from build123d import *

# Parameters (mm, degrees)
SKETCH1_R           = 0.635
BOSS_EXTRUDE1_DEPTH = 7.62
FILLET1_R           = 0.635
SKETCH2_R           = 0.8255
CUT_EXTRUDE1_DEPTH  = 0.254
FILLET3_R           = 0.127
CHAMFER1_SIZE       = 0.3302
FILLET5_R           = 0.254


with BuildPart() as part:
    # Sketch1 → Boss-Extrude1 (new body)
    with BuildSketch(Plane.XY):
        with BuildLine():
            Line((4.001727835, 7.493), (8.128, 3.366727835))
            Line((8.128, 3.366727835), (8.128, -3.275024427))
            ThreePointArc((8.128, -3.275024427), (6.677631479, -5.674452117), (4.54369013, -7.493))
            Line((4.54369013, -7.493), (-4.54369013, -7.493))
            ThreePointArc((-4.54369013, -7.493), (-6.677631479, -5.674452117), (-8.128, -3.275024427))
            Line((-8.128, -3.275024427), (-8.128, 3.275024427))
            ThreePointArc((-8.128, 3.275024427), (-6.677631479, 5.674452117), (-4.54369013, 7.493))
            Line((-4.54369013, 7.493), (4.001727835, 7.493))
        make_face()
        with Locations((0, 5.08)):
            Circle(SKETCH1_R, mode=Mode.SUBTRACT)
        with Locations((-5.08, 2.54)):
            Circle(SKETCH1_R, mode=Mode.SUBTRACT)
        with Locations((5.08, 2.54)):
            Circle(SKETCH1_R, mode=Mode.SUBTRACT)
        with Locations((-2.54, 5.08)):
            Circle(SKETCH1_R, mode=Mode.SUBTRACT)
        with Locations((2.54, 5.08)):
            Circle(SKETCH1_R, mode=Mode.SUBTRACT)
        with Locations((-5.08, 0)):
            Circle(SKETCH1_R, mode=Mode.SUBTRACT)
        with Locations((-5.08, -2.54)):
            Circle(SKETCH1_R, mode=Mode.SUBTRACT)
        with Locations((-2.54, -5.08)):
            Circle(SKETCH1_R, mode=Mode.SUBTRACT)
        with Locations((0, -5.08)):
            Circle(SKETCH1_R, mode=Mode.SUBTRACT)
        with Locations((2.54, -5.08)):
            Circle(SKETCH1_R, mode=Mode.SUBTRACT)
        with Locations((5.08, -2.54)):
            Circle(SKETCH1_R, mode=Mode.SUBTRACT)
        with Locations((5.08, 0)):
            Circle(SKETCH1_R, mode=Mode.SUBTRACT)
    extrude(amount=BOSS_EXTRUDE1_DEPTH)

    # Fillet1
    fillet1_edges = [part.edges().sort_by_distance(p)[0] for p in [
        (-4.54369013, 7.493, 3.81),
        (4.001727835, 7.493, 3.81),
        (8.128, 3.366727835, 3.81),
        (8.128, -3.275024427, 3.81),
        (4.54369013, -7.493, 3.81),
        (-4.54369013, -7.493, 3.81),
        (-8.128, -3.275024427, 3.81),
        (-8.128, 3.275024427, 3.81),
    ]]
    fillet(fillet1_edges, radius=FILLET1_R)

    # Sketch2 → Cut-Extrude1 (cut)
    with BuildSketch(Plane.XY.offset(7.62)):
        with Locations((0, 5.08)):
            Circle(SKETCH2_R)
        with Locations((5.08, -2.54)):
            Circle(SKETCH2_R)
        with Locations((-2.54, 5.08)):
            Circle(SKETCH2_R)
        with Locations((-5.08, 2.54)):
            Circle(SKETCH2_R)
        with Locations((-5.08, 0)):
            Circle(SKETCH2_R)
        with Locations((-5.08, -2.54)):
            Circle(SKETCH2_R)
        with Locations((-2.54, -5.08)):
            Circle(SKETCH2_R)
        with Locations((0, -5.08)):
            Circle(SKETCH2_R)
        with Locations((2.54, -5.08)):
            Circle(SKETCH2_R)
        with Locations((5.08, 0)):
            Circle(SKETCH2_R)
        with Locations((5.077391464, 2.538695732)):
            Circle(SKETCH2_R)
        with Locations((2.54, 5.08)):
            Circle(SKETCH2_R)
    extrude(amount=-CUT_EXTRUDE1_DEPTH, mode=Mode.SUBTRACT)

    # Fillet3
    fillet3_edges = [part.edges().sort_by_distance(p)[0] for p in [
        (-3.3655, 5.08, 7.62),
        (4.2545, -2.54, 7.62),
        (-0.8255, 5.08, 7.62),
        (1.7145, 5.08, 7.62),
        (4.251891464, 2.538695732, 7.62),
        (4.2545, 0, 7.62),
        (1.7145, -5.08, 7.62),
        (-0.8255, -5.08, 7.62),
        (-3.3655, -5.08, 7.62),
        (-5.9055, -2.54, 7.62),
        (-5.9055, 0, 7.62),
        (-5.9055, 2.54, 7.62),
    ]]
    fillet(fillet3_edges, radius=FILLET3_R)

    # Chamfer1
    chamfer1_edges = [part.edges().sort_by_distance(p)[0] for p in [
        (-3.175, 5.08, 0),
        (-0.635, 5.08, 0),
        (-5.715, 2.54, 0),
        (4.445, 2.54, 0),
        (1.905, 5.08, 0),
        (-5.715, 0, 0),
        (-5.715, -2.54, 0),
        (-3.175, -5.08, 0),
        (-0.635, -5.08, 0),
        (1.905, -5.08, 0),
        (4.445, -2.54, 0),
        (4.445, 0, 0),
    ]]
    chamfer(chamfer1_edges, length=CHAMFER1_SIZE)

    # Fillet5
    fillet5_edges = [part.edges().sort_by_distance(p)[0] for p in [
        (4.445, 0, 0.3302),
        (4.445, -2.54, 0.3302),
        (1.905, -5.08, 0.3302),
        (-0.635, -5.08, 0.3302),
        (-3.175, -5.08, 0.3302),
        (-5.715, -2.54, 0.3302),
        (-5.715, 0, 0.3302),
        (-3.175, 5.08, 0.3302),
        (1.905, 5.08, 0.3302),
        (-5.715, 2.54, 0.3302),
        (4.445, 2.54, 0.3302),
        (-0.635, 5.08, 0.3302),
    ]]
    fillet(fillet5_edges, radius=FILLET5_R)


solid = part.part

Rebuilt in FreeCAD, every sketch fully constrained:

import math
import FreeCAD as App
import Part
import Sketcher

V = App.Vector
Q = App.Units.Quantity


def edges_at(feature, points):
    """Names of the edges that pass closest to the given points."""
    edges = feature.Shape.Edges
    near = lambda p: min(range(len(edges)), key=lambda i: edges[i].distToShape(Part.Vertex(*p))[0])
    return sorted({f"Edge{near(p) + 1}" for p in points})

doc = App.newDocument("Part")
body = doc.addObject("PartDesign::Body", "Body")

# Sketch on XY plane
sketch1 = body.newObject("Sketcher::SketchObject", "Sketch")
sketch1.AttachmentSupport = (doc.getObject("XY_Plane"), [""])
sketch1.MapMode = "FlatFace"
sketch1.addGeometry([
    Part.LineSegment(V(8.128, 3.366728, 0), V(4.001728, 7.493, 0)),  # 0
    Part.LineSegment(V(4.001728, 7.493, 0), V(-4.54369, 7.493, 0)),  # 1
    Part.ArcOfCircle(Part.Circle(V(0, 0, 0), V(0, 0, 1), 8.763), math.radians(121.232259), math.radians(158.053959)),  # 2
    Part.LineSegment(V(-8.128, 3.275024, 0), V(-8.128, -3.275024, 0)),  # 3
    Part.ArcOfCircle(Part.Circle(V(0, 0, 0), V(0, 0, 1), 8.763), math.radians(-158.053959), math.radians(-121.232259)),  # 4
    Part.LineSegment(V(-4.54369, -7.493, 0), V(4.54369, -7.493, 0)),  # 5
    Part.ArcOfCircle(Part.Circle(V(0, 0, 0), V(0, 0, 1), 8.763), math.radians(-58.767741), math.radians(-21.946041)),  # 6
    Part.LineSegment(V(8.128, -3.275024, 0), V(8.128, 3.366728, 0)),  # 7
    Part.Circle(V(2.54, -5.08, 0), V(0, 0, 1), 0.635),  # 8
    Part.Circle(V(5.08, -2.54, 0), V(0, 0, 1), 0.635),  # 9
    Part.Circle(V(0, -5.08, 0), V(0, 0, 1), 0.635),  # 10
    Part.Circle(V(-2.54, -5.08, 0), V(0, 0, 1), 0.635),  # 11
    Part.Circle(V(-5.08, -2.54, 0), V(0, 0, 1), 0.635),  # 12
    Part.Circle(V(5.08, 0, 0), V(0, 0, 1), 0.635),  # 13
    Part.Circle(V(5.08, 2.54, 0), V(0, 0, 1), 0.635),  # 14
    Part.Circle(V(2.54, 5.08, 0), V(0, 0, 1), 0.635),  # 15
    Part.Circle(V(-5.08, 0, 0), V(0, 0, 1), 0.635),  # 16
    Part.Circle(V(-5.08, 2.54, 0), V(0, 0, 1), 0.635),  # 17
    Part.Circle(V(0, 5.08, 0), V(0, 0, 1), 0.635),  # 18
    Part.Circle(V(-2.54, 5.08, 0), V(0, 0, 1), 0.635),  # 19
], False)
sketch1.addConstraint([
    Sketcher.Constraint("Coincident", 0, 2, 1, 1),
    Sketcher.Constraint("Coincident", 1, 2, 2, 1),
    Sketcher.Constraint("Coincident", 2, 2, 3, 1),
    Sketcher.Constraint("Coincident", 3, 2, 4, 1),
    Sketcher.Constraint("Coincident", 4, 2, 5, 1),
    Sketcher.Constraint("Coincident", 5, 2, 6, 1),
    Sketcher.Constraint("Coincident", 6, 2, 7, 1),
    Sketcher.Constraint("Coincident", 7, 2, 0, 1),
    Sketcher.Constraint("Horizontal", 1),
    Sketcher.Constraint("Vertical", 3),
    Sketcher.Constraint("Horizontal", 5),
    Sketcher.Constraint("Vertical", 7),
    Sketcher.Constraint("Coincident", 2, 3, -1, 1),
    Sketcher.Constraint("Coincident", 4, 3, -1, 1),
    Sketcher.Constraint("Coincident", 6, 3, -1, 1),
    Sketcher.Constraint("Equal", 2, 4),
    Sketcher.Constraint("Equal", 4, 6),
    Sketcher.Constraint("Equal", 8, 9),
    Sketcher.Constraint("Equal", 9, 10),
    Sketcher.Constraint("Equal", 10, 11),
    Sketcher.Constraint("Equal", 11, 12),
    Sketcher.Constraint("Equal", 12, 13),
    Sketcher.Constraint("Equal", 13, 14),
    Sketcher.Constraint("Equal", 14, 15),
    Sketcher.Constraint("Equal", 15, 16),
    Sketcher.Constraint("Equal", 16, 17),
    Sketcher.Constraint("Equal", 17, 18),
    Sketcher.Constraint("Equal", 18, 19),
    Sketcher.Constraint("Symmetric", 12, 3, 14, 3, -1, 1),
    Sketcher.Constraint("Symmetric", 11, 3, 15, 3, -1, 1),
    Sketcher.Constraint("Symmetric", 13, 3, 16, 3, -1, 1),
    Sketcher.Constraint("Symmetric", 9, 3, 17, 3, -1, 1),
    Sketcher.Constraint("Symmetric", 10, 3, 18, 3, -1, 1),
    Sketcher.Constraint("Symmetric", 8, 3, 19, 3, -1, 1),
    Sketcher.Constraint("Symmetric", 8, 3, 11, 3, -2),
    Sketcher.Constraint("Symmetric", 9, 3, 12, 3, -2),
    Sketcher.Constraint("PointOnObject", 10, 3, -2),
    Sketcher.Constraint("PointOnObject", 13, 3, -1),
    Sketcher.Constraint("Horizontal", 8, 3, 10, 3),
    Sketcher.Constraint("Horizontal", 3, 2, 6, 2),
    Sketcher.Constraint("Vertical", 9, 3, 13, 3),
    Sketcher.Constraint("Vertical", 1, 2, 4, 2),
    Sketcher.Constraint("Diameter", 8, Q("0.05 in")),
    Sketcher.Constraint("Angle", 0, Q("135 deg")),
    Sketcher.Constraint("Radius", 2, Q("0.345 in")),
    Sketcher.Constraint("DistanceX", -1, 1, 8, 3, Q("0.1 in")),
    Sketcher.Constraint("DistanceY", 8, 3, -1, 1, Q("0.2 in")),
    Sketcher.Constraint("DistanceX", -1, 1, 9, 3, Q("0.2 in")),
    Sketcher.Constraint("DistanceY", 9, 3, -1, 1, Q("0.1 in")),
    Sketcher.Constraint("DistanceX", 2, 2, -1, 1, Q("0.32 in")),
    Sketcher.Constraint("DistanceY", -1, 1, 0, 2, Q("0.295 in")),
    Sketcher.Constraint("Distance", 0, Q("5.83543 mm")),
])
pad1 = body.newObject("PartDesign::Pad", "Pad")
pad1.Profile = sketch1
pad1.Length = Q("0.3 in")
doc.recompute()

fillet = body.newObject("PartDesign::Fillet", "Fillet")
fillet.Base = (pad1, edges_at(pad1, [
    (-4.544, 7.493, 3.81),
    (4.002, 7.493, 3.81),
    (8.128, 3.367, 3.81),
    (8.128, -3.275, 3.81),
    (4.544, -7.493, 3.81),
    (-4.544, -7.493, 3.81),
    (-8.128, -3.275, 3.81),
    (-8.128, 3.275, 3.81),
]))
fillet.Radius = Q("0.025 in")

# Sketch on XY plane
sketch2 = body.newObject("Sketcher::SketchObject", "Sketch001")
sketch2.AttachmentSupport = (doc.getObject("XY_Plane"), [""])
sketch2.MapMode = "FlatFace"
sketch2.AttachmentOffset = App.Placement(V(0, 0, 0.3 * 25.4), App.Rotation())
sketch2.addGeometry([
    Part.Circle(V(0, 5.08, 0), V(0, 0, 1), 0.8255),  # 0
    Part.Circle(V(5.08, -2.54, 0), V(0, 0, 1), 0.8255),  # 1
    Part.Circle(V(-2.54, 5.08, 0), V(0, 0, 1), 0.8255),  # 2
    Part.Circle(V(-5.08, 2.54, 0), V(0, 0, 1), 0.8255),  # 3
    Part.Circle(V(-5.08, 0, 0), V(0, 0, 1), 0.8255),  # 4
    Part.Circle(V(-5.08, -2.54, 0), V(0, 0, 1), 0.8255),  # 5
    Part.Circle(V(-2.54, -5.08, 0), V(0, 0, 1), 0.8255),  # 6
    Part.Circle(V(0, -5.08, 0), V(0, 0, 1), 0.8255),  # 7
    Part.Circle(V(2.54, -5.08, 0), V(0, 0, 1), 0.8255),  # 8
    Part.Circle(V(5.08, 0, 0), V(0, 0, 1), 0.8255),  # 9
    Part.Circle(V(5.077391, 2.538696, 0), V(0, 0, 1), 0.8255),  # 10
    Part.Circle(V(2.54, 5.08, 0), V(0, 0, 1), 0.8255),  # 11
], False)
sketch2.addConstraint([
    Sketcher.Constraint("Equal", 0, 1),
    Sketcher.Constraint("Equal", 1, 2),
    Sketcher.Constraint("Equal", 2, 3),
    Sketcher.Constraint("Equal", 3, 4),
    Sketcher.Constraint("Equal", 4, 5),
    Sketcher.Constraint("Equal", 5, 6),
    Sketcher.Constraint("Equal", 6, 7),
    Sketcher.Constraint("Equal", 7, 8),
    Sketcher.Constraint("Equal", 8, 9),
    Sketcher.Constraint("Equal", 9, 10),
    Sketcher.Constraint("Equal", 10, 11),
    Sketcher.Constraint("Symmetric", 1, 3, 3, 3, -1, 1),
    Sketcher.Constraint("Symmetric", 0, 3, 7, 3, -1, 1),
    Sketcher.Constraint("Symmetric", 2, 3, 8, 3, -1, 1),
    Sketcher.Constraint("Symmetric", 4, 3, 9, 3, -1, 1),
    Sketcher.Constraint("Symmetric", 6, 3, 11, 3, -1, 1),
    Sketcher.Constraint("Symmetric", 1, 3, 5, 3, -2),
    Sketcher.Constraint("Symmetric", 6, 3, 8, 3, -2),
    Sketcher.Constraint("PointOnObject", 0, 3, -2),
    Sketcher.Constraint("PointOnObject", 4, 3, -1),
    Sketcher.Constraint("Horizontal", 0, 3, 2, 3),
    Sketcher.Constraint("Vertical", 3, 3, 4, 3),
    Sketcher.Constraint("Diameter", 0, Q("0.065 in")),
    Sketcher.Constraint("DistanceY", -1, 1, 0, 3, Q("0.2 in")),
    Sketcher.Constraint("DistanceX", -1, 1, 1, 3, Q("0.2 in")),
    Sketcher.Constraint("DistanceY", 1, 3, -1, 1, Q("0.1 in")),
    Sketcher.Constraint("DistanceX", 2, 3, -1, 1, Q("0.1 in")),
    Sketcher.Constraint("DistanceX", -1, 1, 10, 3, Q("5.077391 mm")),
    Sketcher.Constraint("DistanceY", -1, 1, 10, 3, Q("2.538696 mm")),
])
pocket1 = body.newObject("PartDesign::Pocket", "Pocket")
pocket1.Profile = sketch2
pocket1.Length = Q("0.01 in")
doc.recompute()

fillet2 = body.newObject("PartDesign::Fillet", "Fillet001")
fillet2.Base = (pocket1, edges_at(pocket1, [
    (-3.365, 5.08, 7.62),
    (4.255, -2.54, 7.62),
    (-0.826, 5.08, 7.62),
    (1.714, 5.08, 7.62),
    (4.252, 2.539, 7.62),
    (4.255, 0, 7.62),
    (1.714, -5.08, 7.62),
    (-0.826, -5.08, 7.62),
    (-3.365, -5.08, 7.62),
    (-5.905, -2.54, 7.62),
    (-5.905, 0, 7.62),
    (-5.905, 2.54, 7.62),
]))
fillet2.Radius = Q("0.005 in")
doc.recompute()

chamfer = body.newObject("PartDesign::Chamfer", "Chamfer")
chamfer.Base = (fillet2, edges_at(fillet2, [
    (-3.175, 5.08, 0),
    (-0.635, 5.08, 0),
    (-5.715, 2.54, 0),
    (4.445, 2.54, 0),
    (1.905, 5.08, 0),
    (-5.715, 0, 0),
    (-5.715, -2.54, 0),
    (-3.175, -5.08, 0),
    (-0.635, -5.08, 0),
    (1.905, -5.08, 0),
    (4.445, -2.54, 0),
    (4.445, 0, 0),
]))
chamfer.Size = Q("0.013 in")
doc.recompute()

fillet3 = body.newObject("PartDesign::Fillet", "Fillet002")
fillet3.Base = (chamfer, edges_at(chamfer, [
    (4.445, 0, 0.33),
    (4.445, -2.54, 0.33),
    (1.905, -5.08, 0.33),
    (-0.635, -5.08, 0.33),
    (-3.175, -5.08, 0.33),
    (-5.715, -2.54, 0.33),
    (-5.715, 0, 0.33),
    (-3.175, 5.08, 0.33),
    (1.905, 5.08, 0.33),
    (-5.715, 2.54, 0.33),
    (4.445, 2.54, 0.33),
    (-0.635, 5.08, 0.33),
]))
fillet3.Radius = Q("0.01 in")

doc.recompute()
